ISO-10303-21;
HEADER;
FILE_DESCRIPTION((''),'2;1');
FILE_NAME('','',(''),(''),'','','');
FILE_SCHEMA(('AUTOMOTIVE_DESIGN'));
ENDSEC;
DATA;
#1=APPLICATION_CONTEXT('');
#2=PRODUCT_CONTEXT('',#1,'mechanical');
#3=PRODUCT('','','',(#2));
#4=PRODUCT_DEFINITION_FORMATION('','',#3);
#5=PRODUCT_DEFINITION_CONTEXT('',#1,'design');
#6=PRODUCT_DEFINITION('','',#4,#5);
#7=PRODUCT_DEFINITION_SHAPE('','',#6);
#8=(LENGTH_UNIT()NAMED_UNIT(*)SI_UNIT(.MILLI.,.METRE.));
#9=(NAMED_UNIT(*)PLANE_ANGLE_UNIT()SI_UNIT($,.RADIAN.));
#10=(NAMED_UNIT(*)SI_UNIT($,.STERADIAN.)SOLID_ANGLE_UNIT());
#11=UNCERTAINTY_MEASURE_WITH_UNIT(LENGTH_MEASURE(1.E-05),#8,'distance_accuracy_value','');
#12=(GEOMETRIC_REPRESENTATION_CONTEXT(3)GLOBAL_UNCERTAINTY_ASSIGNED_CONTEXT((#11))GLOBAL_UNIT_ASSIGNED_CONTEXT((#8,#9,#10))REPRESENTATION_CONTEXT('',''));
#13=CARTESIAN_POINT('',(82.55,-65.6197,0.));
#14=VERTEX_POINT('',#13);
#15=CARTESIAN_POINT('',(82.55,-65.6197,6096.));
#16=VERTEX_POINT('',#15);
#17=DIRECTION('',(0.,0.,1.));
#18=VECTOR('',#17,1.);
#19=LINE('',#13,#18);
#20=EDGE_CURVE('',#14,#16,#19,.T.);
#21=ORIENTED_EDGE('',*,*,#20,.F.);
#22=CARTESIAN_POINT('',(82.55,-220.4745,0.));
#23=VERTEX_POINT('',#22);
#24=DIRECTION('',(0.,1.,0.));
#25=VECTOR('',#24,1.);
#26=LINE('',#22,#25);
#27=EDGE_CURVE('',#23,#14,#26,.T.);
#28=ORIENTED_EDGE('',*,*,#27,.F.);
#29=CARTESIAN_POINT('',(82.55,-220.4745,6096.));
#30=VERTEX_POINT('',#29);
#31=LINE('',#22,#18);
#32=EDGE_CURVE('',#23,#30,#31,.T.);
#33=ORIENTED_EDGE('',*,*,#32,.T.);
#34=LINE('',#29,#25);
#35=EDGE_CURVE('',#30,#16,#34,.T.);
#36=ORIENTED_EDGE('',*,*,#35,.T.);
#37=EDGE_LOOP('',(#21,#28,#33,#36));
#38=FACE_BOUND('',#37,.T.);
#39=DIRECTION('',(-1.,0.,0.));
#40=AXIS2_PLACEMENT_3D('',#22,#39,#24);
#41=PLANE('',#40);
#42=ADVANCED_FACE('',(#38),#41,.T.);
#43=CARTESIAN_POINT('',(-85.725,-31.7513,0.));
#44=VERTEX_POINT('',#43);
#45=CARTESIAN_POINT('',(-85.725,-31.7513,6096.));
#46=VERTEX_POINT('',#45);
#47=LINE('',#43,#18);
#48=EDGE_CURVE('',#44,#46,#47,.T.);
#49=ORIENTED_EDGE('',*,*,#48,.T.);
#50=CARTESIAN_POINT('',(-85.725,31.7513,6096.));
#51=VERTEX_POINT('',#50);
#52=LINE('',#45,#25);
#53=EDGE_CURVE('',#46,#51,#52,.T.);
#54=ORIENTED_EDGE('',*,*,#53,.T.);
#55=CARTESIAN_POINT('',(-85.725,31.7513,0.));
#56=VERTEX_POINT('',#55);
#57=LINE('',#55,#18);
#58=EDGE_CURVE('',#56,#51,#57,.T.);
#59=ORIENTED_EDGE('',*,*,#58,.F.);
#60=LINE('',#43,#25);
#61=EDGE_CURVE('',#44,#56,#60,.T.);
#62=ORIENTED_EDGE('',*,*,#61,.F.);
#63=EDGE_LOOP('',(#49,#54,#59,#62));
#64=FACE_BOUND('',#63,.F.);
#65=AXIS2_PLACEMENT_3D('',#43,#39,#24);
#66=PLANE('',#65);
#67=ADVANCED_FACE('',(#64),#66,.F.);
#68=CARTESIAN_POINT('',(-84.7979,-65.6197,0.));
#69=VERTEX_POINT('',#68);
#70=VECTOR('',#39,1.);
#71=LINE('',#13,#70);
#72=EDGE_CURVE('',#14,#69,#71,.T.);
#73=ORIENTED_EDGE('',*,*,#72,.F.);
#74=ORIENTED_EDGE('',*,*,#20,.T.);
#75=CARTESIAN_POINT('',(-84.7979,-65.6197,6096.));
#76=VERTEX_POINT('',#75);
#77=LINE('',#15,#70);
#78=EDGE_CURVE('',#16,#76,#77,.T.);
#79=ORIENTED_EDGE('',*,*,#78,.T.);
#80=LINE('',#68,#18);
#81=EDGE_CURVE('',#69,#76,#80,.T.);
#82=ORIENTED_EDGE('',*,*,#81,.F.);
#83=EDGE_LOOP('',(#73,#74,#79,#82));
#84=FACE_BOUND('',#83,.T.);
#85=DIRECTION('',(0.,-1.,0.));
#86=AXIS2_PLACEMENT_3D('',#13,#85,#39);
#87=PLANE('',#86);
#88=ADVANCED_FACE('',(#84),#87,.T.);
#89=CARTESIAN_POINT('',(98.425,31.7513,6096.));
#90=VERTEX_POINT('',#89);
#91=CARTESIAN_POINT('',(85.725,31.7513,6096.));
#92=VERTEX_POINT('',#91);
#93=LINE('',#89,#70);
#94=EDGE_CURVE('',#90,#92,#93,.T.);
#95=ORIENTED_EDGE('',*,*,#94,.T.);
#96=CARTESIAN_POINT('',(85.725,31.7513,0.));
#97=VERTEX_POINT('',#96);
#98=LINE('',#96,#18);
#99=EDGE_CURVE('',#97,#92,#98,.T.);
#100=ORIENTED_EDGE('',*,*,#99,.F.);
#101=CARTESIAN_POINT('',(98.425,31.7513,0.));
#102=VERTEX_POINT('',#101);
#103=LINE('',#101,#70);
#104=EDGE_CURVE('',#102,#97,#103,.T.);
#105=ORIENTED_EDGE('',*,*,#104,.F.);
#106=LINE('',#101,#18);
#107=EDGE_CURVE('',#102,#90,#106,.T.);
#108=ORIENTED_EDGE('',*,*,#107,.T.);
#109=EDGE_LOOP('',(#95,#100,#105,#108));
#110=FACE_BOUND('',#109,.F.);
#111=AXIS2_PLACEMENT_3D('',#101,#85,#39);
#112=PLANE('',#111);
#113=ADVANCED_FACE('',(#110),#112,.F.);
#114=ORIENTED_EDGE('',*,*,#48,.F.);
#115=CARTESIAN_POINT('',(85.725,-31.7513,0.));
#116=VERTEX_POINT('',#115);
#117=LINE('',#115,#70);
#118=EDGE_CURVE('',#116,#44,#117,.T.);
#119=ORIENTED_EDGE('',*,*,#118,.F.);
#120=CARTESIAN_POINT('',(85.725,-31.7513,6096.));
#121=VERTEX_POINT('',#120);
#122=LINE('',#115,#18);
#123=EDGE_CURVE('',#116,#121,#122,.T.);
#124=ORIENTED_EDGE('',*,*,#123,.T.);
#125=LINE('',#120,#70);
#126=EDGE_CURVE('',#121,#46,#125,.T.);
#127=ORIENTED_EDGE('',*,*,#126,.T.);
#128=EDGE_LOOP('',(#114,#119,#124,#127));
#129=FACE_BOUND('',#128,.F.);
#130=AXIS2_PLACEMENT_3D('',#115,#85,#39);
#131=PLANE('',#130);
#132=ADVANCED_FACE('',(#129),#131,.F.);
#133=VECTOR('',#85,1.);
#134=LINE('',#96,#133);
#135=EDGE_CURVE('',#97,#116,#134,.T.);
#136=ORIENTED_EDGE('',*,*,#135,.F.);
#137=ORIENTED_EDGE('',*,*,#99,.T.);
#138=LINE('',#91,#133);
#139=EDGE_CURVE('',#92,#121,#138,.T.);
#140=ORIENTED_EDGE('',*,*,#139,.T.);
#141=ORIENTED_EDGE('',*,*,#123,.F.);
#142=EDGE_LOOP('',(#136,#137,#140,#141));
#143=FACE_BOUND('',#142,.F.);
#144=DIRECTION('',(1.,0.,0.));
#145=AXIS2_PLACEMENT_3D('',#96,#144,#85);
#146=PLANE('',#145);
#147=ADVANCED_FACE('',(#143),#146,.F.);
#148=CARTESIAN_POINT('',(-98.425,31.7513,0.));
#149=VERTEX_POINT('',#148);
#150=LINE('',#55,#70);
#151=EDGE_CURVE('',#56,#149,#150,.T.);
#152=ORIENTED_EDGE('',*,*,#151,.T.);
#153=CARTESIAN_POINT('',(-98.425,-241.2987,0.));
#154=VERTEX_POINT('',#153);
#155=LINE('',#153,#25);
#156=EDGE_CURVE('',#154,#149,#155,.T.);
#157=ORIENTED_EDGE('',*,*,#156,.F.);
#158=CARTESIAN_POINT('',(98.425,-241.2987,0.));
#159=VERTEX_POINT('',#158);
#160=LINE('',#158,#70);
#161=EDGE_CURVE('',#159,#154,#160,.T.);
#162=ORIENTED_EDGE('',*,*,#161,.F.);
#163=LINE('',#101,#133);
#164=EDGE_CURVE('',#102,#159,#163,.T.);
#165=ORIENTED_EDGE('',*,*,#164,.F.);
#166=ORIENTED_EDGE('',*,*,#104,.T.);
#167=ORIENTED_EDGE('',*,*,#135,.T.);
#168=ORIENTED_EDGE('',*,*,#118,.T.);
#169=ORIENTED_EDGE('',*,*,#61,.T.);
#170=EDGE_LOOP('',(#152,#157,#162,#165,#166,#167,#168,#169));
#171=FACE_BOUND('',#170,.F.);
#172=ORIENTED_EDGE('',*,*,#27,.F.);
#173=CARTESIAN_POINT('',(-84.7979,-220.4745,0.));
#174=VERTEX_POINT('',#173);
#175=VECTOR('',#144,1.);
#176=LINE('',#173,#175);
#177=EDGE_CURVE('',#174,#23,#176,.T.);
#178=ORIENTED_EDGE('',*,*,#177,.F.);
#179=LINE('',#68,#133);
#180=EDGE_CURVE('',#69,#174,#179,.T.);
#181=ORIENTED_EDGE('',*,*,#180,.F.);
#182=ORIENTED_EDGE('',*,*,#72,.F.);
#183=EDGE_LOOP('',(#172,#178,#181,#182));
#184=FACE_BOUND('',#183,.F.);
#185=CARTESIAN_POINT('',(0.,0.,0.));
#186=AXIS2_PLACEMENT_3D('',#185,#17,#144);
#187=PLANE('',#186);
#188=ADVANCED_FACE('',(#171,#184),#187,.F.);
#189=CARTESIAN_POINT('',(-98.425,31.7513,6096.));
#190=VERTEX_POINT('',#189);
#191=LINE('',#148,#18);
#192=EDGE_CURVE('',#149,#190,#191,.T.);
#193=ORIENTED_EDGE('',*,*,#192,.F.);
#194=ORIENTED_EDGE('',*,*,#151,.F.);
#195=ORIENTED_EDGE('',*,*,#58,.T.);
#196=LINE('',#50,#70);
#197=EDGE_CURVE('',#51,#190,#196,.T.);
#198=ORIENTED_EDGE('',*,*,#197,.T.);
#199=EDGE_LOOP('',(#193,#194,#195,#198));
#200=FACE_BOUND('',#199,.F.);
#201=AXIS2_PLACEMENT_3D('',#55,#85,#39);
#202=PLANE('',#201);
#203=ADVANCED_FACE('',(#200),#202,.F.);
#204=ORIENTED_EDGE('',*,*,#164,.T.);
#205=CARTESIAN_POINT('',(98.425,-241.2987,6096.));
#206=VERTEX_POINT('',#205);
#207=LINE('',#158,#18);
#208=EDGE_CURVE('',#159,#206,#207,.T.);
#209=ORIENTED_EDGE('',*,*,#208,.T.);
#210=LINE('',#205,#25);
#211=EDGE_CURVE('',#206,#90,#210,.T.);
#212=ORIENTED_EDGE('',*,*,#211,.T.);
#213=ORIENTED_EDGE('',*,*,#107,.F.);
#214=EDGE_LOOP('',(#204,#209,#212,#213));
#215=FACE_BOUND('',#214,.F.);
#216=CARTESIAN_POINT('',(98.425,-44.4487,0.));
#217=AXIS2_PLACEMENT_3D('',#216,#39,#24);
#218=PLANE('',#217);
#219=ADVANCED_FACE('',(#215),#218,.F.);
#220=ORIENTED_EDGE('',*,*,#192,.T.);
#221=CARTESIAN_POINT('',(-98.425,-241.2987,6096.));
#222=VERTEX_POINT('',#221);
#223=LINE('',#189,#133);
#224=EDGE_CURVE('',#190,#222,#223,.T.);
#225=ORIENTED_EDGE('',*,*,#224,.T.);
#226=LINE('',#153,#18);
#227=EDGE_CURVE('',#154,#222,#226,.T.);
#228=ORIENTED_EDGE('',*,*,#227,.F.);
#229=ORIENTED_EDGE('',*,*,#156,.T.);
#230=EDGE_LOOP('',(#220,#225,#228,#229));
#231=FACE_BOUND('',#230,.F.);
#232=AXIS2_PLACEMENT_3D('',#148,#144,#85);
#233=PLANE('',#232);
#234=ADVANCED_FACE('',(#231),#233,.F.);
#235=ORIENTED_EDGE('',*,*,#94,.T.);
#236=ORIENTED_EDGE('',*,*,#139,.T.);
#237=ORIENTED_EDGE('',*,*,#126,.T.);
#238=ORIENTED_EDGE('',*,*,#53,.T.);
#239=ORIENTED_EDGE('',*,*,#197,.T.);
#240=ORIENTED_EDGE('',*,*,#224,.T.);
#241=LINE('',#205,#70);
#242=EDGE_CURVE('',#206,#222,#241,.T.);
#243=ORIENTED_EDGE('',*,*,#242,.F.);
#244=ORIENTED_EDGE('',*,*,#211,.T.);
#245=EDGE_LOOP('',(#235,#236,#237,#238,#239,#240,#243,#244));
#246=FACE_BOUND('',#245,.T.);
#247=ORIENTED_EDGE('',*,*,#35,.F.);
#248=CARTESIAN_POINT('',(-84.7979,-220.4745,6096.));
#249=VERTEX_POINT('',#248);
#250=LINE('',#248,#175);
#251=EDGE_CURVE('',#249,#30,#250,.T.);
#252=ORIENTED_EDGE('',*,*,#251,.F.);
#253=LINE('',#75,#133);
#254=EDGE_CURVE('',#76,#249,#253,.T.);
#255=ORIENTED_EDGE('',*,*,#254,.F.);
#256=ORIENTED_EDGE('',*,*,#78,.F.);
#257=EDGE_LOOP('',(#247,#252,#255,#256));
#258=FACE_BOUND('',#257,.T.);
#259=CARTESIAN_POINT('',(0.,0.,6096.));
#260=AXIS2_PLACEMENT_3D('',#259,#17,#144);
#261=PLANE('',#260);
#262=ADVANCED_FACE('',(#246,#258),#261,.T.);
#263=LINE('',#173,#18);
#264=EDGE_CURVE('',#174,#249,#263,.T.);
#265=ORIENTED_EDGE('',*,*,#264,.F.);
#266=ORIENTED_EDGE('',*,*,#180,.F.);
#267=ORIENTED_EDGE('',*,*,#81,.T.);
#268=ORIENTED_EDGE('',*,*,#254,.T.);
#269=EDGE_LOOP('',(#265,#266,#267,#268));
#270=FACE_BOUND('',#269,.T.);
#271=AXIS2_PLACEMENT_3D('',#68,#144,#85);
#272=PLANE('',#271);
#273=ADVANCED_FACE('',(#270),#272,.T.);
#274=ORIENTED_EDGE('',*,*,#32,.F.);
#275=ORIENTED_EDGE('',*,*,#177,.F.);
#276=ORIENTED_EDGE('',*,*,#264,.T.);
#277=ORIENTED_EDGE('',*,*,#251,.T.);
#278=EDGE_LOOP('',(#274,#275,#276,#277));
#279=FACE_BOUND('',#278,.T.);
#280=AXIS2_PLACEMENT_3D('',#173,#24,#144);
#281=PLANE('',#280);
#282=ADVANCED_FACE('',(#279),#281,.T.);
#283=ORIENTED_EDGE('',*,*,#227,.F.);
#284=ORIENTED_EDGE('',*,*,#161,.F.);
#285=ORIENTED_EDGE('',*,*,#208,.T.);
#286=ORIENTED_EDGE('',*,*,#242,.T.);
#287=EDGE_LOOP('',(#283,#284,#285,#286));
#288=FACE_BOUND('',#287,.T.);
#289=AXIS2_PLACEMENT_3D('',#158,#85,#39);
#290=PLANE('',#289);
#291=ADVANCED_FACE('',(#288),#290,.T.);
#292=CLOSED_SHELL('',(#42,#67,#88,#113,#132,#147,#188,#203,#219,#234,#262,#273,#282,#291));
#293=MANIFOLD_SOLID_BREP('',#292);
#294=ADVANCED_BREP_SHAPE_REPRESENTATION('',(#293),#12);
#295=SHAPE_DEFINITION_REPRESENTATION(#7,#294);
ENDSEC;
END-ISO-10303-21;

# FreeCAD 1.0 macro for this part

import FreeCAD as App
import Part
import Sketcher
from FreeCAD import Vector
Q = App.Units.Quantity

doc = App.newDocument("Part")
body = doc.addObject("PartDesign::Body", "Body")

# Sketch on XY plane
sketch1 = body.newObject("Sketcher::SketchObject", "Sketch")
sketch1.AttachmentSupport = (doc.getObject("XY_Plane"), [""])
sketch1.MapMode = "FlatFace"
sketch1.addGeometry(Part.LineSegment(Vector(86, 32, 0), Vector(86, -32, 0)), False)
sketch1.addGeometry(Part.LineSegment(Vector(86, -32, 0), Vector(-86, -32, 0)), False)
sketch1.addGeometry(Part.LineSegment(Vector(-86, -32, 0), Vector(-86, 32, 0)), False)
sketch1.addGeometry(Part.LineSegment(Vector(-86, 32, 0), Vector(-98, 32, 0)), False)
sketch1.addGeometry(Part.LineSegment(Vector(-98, 32, 0), Vector(-98, -241, 0)), False)
sketch1.addGeometry(Part.LineSegment(Vector(-98, -241, 0), Vector(98, -241, 0)), False)
sketch1.addGeometry(Part.LineSegment(Vector(98, -241, 0), Vector(98, 32, 0)), False)
sketch1.addGeometry(Part.LineSegment(Vector(98, 32, 0), Vector(86, 32, 0)), False)
sketch1.addGeometry(Part.LineSegment(Vector(-85, -220, 0), Vector(-85, -66, 0)), False)
sketch1.addGeometry(Part.LineSegment(Vector(-85, -66, 0), Vector(83, -66, 0)), False)
sketch1.addGeometry(Part.LineSegment(Vector(83, -66, 0), Vector(83, -220, 0)), False)
sketch1.addGeometry(Part.LineSegment(Vector(83, -220, 0), Vector(-85, -220, 0)), False)
sketch1.addConstraint(Sketcher.Constraint("Coincident", 0, 2, 1, 1))
sketch1.addConstraint(Sketcher.Constraint("Coincident", 1, 2, 2, 1))
sketch1.addConstraint(Sketcher.Constraint("Coincident", 2, 2, 3, 1))
sketch1.addConstraint(Sketcher.Constraint("Coincident", 3, 2, 4, 1))
sketch1.addConstraint(Sketcher.Constraint("Coincident", 4, 2, 5, 1))
sketch1.addConstraint(Sketcher.Constraint("Coincident", 5, 2, 6, 1))
sketch1.addConstraint(Sketcher.Constraint("Coincident", 6, 2, 7, 1))
sketch1.addConstraint(Sketcher.Constraint("Coincident", 7, 2, 0, 1))
sketch1.addConstraint(Sketcher.Constraint("Coincident", 8, 2, 9, 1))
sketch1.addConstraint(Sketcher.Constraint("Coincident", 9, 2, 10, 1))
sketch1.addConstraint(Sketcher.Constraint("Coincident", 10, 2, 11, 1))
sketch1.addConstraint(Sketcher.Constraint("Coincident", 11, 2, 8, 1))
sketch1.addConstraint(Sketcher.Constraint("Vertical", 0))
sketch1.addConstraint(Sketcher.Constraint("Horizontal", 1))
sketch1.addConstraint(Sketcher.Constraint("Vertical", 2))
sketch1.addConstraint(Sketcher.Constraint("Horizontal", 3))
sketch1.addConstraint(Sketcher.Constraint("Vertical", 4))
sketch1.addConstraint(Sketcher.Constraint("Horizontal", 5))
sketch1.addConstraint(Sketcher.Constraint("Vertical", 6))
sketch1.addConstraint(Sketcher.Constraint("Horizontal", 7))
sketch1.addConstraint(Sketcher.Constraint("Vertical", 8))
sketch1.addConstraint(Sketcher.Constraint("Horizontal", 9))
sketch1.addConstraint(Sketcher.Constraint("Vertical", 10))
sketch1.addConstraint(Sketcher.Constraint("Horizontal", 11))
sketch1.addConstraint(Sketcher.Constraint("Symmetric", 0, 2, 2, 2, -1, 1))
sketch1.addConstraint(Sketcher.Constraint("Symmetric", 3, 2, 6, 2, -2))
sketch1.addConstraint(Sketcher.Constraint("DistanceX", 3, 2, 3, 1, Q("0.5 in")))
sketch1.addConstraint(Sketcher.Constraint("DistanceX", 5, 1, 5, 2, Q("7.75 in")))
sketch1.addConstraint(Sketcher.Constraint("DistanceY", 4, 2, 4, 1, Q("10.75 in")))
sketch1.addConstraint(Sketcher.Constraint("DistanceX", -1, 1, 9, 2, Q("3.25 in")))
sketch1.addConstraint(Sketcher.Constraint("DistanceX", 9, 1, 9, 2, Q("6.5885 in")))
sketch1.addConstraint(Sketcher.Constraint("DistanceY", 0, 2, 0, 1, Q("2.5001 in")))
sketch1.addConstraint(Sketcher.Constraint("DistanceY", 8, 1, 8, 2, 154.8548))
sketch1.addConstraint(Sketcher.Constraint("DistanceY", 10, 2, -1, 1, Q("8.6801 in")))
pad1 = body.newObject("PartDesign::Pad", "Pad")
pad1.Profile = sketch1
pad1.Length = Q("240 in")

doc.recompute()
